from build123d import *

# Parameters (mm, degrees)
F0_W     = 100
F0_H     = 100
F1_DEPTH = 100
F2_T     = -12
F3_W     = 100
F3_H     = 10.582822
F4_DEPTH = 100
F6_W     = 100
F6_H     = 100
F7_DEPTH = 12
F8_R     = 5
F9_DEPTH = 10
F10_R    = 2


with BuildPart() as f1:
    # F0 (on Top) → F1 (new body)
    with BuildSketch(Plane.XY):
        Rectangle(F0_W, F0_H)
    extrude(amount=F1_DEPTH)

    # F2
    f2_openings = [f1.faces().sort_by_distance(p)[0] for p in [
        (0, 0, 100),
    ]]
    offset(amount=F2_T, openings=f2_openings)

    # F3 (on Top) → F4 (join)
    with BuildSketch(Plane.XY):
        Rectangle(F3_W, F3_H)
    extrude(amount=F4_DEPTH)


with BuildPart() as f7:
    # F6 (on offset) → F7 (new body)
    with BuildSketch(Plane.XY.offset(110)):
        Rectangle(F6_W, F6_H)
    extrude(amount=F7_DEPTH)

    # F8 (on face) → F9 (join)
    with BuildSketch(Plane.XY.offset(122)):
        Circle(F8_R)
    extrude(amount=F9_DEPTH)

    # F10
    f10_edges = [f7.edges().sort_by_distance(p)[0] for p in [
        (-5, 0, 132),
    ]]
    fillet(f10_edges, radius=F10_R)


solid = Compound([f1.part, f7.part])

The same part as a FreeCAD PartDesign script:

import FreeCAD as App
import Part
import Sketcher

V = App.Vector


def edges_at(feature, points):
    """Names of the edges that pass closest to the given points."""
    edges = feature.Shape.Edges
    near = lambda p: min(range(len(edges)), key=lambda i: edges[i].distToShape(Part.Vertex(*p))[0])
    return sorted({f"Edge{near(p) + 1}" for p in points})


def faces_at(feature, points):
    """Names of the faces that lie closest to the given points."""
    faces = feature.Shape.Faces
    near = lambda p: min(range(len(faces)), key=lambda i: faces[i].distToShape(Part.Vertex(*p))[0])
    return sorted({f"Face{near(p) + 1}" for p in points})


def add_polygon(sketch, points):
    """Adds a closed chain of lines whose ends are joined by coincident constraints."""
    first, n = sketch.GeometryCount, len(points)
    for a, b in zip(points, points[1:] + points[:1]):
        sketch.addGeometry(Part.LineSegment(App.Vector(*a, 0), App.Vector(*b, 0)), False)
    for i in range(n):
        sketch.addConstraint(Sketcher.Constraint("Coincident", first + i, 2, first + (i + 1) % n, 1))

doc = App.newDocument("Part")
body = doc.addObject("PartDesign::Body", "Body")

sketch1 = body.newObject("Sketcher::SketchObject", "Sketch")
sketch1.AttachmentSupport = (doc.getObject("XY_Plane"), [""])
sketch1.MapMode = "FlatFace"
add_polygon(sketch1, [(-50, 50), (-50, -50), (50, -50), (50, 50)])
sketch1.addConstraint([
    Sketcher.Constraint("Vertical", 0),
    Sketcher.Constraint("Horizontal", 1),
    Sketcher.Constraint("Vertical", 2),
    Sketcher.Constraint("Horizontal", 3),
    Sketcher.Constraint("Symmetric", 0, 2, 2, 2, -1, 1),
    Sketcher.Constraint("Equal", 3, 0),
    Sketcher.Constraint("DistanceX", 1, 1, 1, 2, 100.0),
])
pad1 = body.newObject("PartDesign::Pad", "Pad")
pad1.Profile = sketch1
pad1.Length = 100
doc.recompute()

thickness = body.newObject("PartDesign::Thickness", "Thickness")
thickness.Base = (pad1, faces_at(pad1, [(0, 0, 100)]))
thickness.Value = 12
thickness.Reversed = True
thickness.Join = "Arc"

sketch2 = body.newObject("Sketcher::SketchObject", "Sketch001")
sketch2.AttachmentSupport = (doc.getObject("XY_Plane"), [""])
sketch2.MapMode = "FlatFace"
add_polygon(sketch2, [(-50, 5), (-50, -5), (50, -5), (50, 5)])
sketch2.addConstraint([
    Sketcher.Constraint("Vertical", 0),
    Sketcher.Constraint("Horizontal", 1),
    Sketcher.Constraint("Vertical", 2),
    Sketcher.Constraint("Horizontal", 3),
    Sketcher.Constraint("Symmetric", 0, 2, 2, 2, -1, 1),
    Sketcher.Constraint("DistanceX", 1, 1, 1, 2, 100.0),
    Sketcher.Constraint("DistanceY", 0, 2, 0, 1, 10.582822),
])
pad2 = body.newObject("PartDesign::Pad", "Pad001")
pad2.Profile = sketch2
pad2.Length = 100
body2 = doc.addObject("PartDesign::Body", "Body001")

sketch3 = body2.newObject("Sketcher::SketchObject", "Sketch002")
sketch3.AttachmentSupport = (doc.getObject("XY_Plane001"), [""])
sketch3.MapMode = "FlatFace"
sketch3.AttachmentOffset = App.Placement(V(0, 0, 110), App.Rotation())
add_polygon(sketch3, [(-50, 50), (-50, -50), (50, -50), (50, 50)])
sketch3.addConstraint([
    Sketcher.Constraint("Vertical", 0),
    Sketcher.Constraint("Horizontal", 1),
    Sketcher.Constraint("Vertical", 2),
    Sketcher.Constraint("Horizontal", 3),
    Sketcher.Constraint("Symmetric", 0, 2, 2, 2, -1, 1),
    Sketcher.Constraint("Equal", 3, 0),
    Sketcher.Constraint("DistanceX", 1, 1, 1, 2, 100.0),
])
pad3 = body2.newObject("PartDesign::Pad", "Pad002")
pad3.Profile = sketch3
pad3.Length = 12

sketch4 = body2.newObject("Sketcher::SketchObject", "Sketch003")
sketch4.AttachmentSupport = (doc.getObject("XY_Plane001"), [""])
sketch4.MapMode = "FlatFace"
sketch4.AttachmentOffset = App.Placement(V(0, 0, 122), App.Rotation())
sketch4.addGeometry(Part.Circle(V(0, 0, 0), V(0, 0, 1), 5), False)
sketch4.addConstraint([
    Sketcher.Constraint("Coincident", 0, 3, -1, 1),
    Sketcher.Constraint("Diameter", 0, 10.0),
])
pad4 = body2.newObject("PartDesign::Pad", "Pad003")
pad4.Profile = sketch4
pad4.Length = 10
doc.recompute()

fillet = body2.newObject("PartDesign::Fillet", "Fillet")
fillet.Base = (pad4, edges_at(pad4, [(-5, 0, 132)]))
fillet.Radius = 2

doc.recompute()
